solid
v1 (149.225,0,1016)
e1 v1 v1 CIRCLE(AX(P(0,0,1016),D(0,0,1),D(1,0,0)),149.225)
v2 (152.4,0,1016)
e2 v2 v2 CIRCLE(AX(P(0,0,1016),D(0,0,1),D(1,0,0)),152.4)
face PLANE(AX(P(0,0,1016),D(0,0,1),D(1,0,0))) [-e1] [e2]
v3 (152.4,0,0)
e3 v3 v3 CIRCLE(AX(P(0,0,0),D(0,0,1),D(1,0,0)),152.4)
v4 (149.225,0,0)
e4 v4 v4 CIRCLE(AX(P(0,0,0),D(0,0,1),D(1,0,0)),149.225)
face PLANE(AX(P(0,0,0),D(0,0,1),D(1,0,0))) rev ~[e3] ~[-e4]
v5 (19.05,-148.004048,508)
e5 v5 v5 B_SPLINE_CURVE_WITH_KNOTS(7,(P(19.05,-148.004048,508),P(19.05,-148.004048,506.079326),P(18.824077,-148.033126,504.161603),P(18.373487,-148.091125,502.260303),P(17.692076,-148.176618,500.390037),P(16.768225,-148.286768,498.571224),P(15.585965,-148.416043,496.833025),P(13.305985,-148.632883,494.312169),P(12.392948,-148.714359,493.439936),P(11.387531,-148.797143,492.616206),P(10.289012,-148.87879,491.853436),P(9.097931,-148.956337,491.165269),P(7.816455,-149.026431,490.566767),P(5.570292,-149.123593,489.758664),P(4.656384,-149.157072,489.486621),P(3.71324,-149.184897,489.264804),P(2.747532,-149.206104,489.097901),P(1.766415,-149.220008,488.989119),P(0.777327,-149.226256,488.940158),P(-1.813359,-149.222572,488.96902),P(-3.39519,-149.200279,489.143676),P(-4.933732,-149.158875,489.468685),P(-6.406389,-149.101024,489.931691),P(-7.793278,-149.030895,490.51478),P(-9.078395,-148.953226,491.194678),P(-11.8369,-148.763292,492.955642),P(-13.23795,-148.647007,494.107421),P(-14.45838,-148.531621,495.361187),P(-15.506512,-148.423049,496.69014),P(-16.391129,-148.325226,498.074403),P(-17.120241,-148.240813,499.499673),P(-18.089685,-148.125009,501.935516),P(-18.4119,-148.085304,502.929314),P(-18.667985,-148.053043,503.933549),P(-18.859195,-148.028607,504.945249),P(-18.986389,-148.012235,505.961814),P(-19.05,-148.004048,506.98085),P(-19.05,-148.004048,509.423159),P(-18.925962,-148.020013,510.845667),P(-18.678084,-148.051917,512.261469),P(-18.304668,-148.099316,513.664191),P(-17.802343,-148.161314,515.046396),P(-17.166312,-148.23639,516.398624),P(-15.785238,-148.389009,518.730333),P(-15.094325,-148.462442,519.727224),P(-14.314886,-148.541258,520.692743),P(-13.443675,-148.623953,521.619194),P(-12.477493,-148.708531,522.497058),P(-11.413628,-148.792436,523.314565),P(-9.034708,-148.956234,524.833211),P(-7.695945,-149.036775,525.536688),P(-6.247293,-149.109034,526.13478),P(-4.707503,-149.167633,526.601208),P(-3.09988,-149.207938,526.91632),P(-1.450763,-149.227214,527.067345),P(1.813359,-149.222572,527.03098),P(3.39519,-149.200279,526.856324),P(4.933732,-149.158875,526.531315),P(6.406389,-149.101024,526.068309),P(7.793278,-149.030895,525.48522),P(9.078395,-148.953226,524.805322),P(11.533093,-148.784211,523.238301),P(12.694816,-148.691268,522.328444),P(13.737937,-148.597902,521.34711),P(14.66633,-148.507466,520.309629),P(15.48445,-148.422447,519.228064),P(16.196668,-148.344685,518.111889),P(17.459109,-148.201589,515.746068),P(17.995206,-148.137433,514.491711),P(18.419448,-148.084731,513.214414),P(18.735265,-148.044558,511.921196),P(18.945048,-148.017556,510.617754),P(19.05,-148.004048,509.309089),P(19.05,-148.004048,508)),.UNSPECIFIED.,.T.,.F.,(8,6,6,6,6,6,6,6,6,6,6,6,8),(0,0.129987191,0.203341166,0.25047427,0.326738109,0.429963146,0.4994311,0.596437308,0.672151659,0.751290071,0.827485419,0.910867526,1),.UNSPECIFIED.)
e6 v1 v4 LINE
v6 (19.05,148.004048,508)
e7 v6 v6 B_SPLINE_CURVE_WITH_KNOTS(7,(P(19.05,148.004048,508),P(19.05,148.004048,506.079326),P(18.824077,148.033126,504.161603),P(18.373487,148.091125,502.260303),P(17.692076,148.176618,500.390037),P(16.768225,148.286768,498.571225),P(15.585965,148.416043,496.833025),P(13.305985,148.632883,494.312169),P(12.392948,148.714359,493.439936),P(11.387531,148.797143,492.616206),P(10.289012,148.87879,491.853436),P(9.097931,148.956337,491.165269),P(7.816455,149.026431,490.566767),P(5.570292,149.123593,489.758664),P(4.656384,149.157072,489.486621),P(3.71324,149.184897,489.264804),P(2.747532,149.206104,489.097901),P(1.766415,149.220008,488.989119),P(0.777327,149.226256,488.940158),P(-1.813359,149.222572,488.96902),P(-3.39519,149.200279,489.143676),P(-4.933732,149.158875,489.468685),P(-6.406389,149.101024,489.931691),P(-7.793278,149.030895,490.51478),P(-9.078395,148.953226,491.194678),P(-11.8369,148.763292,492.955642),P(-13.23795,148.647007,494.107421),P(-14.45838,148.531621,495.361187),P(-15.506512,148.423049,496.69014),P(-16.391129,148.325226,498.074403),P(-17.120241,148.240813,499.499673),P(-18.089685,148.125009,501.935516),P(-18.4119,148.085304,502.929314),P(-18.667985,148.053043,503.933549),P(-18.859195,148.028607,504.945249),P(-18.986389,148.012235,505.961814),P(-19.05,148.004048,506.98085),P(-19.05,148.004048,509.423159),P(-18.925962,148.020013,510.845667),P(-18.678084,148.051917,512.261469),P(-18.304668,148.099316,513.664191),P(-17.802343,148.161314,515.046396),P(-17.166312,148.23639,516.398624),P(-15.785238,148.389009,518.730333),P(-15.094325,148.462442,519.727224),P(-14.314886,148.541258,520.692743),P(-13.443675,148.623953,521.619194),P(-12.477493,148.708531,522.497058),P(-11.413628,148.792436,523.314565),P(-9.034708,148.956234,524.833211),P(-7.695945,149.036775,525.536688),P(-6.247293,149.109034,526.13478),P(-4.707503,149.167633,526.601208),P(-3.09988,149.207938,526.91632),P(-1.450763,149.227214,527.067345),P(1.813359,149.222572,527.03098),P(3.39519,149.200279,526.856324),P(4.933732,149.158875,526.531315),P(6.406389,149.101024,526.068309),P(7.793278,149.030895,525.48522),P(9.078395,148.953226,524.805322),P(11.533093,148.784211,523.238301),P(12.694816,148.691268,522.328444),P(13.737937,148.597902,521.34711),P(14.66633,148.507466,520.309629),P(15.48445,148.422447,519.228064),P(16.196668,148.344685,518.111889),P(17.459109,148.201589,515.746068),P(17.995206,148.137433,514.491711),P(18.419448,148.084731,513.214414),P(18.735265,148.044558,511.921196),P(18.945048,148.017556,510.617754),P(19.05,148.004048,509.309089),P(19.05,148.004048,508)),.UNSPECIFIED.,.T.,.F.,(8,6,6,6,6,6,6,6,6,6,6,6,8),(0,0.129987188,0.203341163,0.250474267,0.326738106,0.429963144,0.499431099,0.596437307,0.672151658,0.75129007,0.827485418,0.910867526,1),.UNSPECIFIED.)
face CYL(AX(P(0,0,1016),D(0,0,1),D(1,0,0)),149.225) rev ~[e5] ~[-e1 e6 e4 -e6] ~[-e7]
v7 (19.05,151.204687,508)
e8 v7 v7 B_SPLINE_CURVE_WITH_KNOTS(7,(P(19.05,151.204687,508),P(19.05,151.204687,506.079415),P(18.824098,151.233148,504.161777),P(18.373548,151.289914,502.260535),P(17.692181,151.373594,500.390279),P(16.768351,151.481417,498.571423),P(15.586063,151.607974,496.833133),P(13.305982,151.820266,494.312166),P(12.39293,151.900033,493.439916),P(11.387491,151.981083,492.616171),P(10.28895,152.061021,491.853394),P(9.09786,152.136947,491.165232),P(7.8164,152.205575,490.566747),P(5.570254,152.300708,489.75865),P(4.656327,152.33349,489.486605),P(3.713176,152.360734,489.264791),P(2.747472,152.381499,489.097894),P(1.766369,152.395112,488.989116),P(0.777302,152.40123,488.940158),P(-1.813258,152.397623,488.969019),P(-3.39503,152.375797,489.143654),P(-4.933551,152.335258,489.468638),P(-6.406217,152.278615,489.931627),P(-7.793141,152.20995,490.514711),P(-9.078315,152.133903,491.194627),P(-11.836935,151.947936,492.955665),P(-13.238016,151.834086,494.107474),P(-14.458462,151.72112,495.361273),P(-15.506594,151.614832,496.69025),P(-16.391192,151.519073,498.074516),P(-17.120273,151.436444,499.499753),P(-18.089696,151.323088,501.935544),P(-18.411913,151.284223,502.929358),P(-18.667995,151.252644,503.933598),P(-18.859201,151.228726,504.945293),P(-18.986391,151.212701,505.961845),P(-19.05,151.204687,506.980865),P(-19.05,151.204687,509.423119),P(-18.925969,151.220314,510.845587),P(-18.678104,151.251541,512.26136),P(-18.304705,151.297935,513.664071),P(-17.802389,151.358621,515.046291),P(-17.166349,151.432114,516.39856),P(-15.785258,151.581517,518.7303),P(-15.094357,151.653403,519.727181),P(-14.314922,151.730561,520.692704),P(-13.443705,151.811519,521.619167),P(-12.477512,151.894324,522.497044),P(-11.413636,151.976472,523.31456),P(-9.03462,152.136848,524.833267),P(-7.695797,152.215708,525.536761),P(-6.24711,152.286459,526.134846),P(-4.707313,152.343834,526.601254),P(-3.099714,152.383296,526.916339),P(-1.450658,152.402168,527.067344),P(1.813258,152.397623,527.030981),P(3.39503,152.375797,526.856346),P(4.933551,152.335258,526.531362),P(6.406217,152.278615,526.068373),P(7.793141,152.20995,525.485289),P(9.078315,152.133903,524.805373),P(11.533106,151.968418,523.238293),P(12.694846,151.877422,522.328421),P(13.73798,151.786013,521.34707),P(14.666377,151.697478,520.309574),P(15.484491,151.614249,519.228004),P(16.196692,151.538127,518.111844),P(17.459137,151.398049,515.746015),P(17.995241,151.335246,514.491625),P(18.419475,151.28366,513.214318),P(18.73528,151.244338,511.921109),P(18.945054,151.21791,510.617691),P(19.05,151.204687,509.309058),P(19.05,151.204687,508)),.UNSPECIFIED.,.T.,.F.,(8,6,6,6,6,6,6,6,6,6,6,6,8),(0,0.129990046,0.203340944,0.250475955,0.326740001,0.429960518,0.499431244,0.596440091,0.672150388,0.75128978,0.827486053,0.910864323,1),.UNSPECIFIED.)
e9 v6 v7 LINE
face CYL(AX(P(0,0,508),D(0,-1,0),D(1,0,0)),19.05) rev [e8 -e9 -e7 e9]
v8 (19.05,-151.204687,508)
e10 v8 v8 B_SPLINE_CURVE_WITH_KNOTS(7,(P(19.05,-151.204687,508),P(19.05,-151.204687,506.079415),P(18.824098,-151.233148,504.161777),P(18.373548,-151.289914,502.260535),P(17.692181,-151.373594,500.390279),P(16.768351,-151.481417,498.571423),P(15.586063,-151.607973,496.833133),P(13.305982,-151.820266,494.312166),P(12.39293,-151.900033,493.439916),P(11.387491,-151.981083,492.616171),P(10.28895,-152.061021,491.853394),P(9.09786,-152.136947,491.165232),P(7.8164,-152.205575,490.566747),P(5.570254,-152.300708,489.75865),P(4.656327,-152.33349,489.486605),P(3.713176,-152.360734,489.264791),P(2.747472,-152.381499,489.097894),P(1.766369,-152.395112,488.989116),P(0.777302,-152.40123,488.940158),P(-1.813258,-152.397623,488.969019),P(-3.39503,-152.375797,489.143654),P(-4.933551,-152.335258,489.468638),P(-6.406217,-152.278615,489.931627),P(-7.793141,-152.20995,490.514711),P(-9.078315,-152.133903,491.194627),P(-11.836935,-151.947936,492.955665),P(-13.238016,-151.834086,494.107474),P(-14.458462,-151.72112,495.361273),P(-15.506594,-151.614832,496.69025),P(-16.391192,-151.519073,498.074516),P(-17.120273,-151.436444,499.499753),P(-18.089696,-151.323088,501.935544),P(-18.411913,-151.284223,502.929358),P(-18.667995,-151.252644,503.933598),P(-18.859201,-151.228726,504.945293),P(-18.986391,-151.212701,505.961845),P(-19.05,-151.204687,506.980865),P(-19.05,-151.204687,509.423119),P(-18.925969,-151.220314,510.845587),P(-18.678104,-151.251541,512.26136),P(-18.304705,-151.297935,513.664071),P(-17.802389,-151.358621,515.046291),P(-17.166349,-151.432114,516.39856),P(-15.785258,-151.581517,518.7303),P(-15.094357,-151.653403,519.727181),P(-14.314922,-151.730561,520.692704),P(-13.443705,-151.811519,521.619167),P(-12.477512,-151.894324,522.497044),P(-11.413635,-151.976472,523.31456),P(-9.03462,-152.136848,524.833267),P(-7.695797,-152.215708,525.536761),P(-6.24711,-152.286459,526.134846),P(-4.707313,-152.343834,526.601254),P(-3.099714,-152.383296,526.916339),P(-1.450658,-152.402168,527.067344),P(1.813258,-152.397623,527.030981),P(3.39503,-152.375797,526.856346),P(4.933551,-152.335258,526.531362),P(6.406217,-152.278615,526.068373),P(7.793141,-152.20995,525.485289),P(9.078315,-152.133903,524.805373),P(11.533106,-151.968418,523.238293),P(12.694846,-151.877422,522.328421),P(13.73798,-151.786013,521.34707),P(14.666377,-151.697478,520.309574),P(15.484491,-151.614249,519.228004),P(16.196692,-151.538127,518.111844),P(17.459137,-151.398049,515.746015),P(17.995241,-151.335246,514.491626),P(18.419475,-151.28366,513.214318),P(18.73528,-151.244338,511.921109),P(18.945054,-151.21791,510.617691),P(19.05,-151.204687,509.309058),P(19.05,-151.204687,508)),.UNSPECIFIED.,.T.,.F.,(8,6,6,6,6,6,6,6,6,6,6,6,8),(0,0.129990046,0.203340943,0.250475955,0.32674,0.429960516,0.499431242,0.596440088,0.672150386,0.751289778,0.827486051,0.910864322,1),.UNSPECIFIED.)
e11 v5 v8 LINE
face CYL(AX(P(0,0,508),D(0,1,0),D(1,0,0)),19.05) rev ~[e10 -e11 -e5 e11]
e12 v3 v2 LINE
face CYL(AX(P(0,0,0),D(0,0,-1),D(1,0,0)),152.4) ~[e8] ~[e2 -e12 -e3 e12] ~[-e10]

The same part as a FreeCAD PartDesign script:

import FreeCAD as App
import Part
import Sketcher
Q = App.Units.Quantity

doc = App.newDocument("Part")
params = doc.addObject("Spreadsheet::Sheet", "Params")
for row, (alias, value) in enumerate([
    ("sketch1_diameter", "12 in"),
    ("pad1_length", "40 in"),
    ("sketch2_diameter", "11.75 in"),
    ("pocket1_length", "40 in"),
    ("sketch3_diameter", "1.5 in"),
], start=1):
    params.set(f"A{row}", alias)
    params.set(f"B{row}", "=" + value)
    params.setAlias(f"B{row}", alias)

body = doc.addObject("PartDesign::Body", "Body")

# Sketch on XY plane
sketch1 = body.newObject("Sketcher::SketchObject", "Sketch")
sketch1.AttachmentSupport = (doc.getObject("XY_Plane"), [""])
sketch1.MapMode = "FlatFace"
sketch1.addGeometry(Part.Circle(App.Vector(0, 0, 0), App.Vector(0, 0, 1), 152), False)
sketch1.addConstraint([
    Sketcher.Constraint("Coincident", 0, 3, -1, 1),
    Sketcher.Constraint("Diameter", 0, Q("12 in")),
])
sketch1.setExpression("Constraints[1]", "Params.sketch1_diameter")
pad1 = body.newObject("PartDesign::Pad", "Pad")
pad1.Profile = sketch1
pad1.setExpression("Length", "Params.pad1_length")

# Sketch on XY plane
sketch2 = body.newObject("Sketcher::SketchObject", "Sketch001")
sketch2.AttachmentSupport = (doc.getObject("XY_Plane"), [""])
sketch2.MapMode = "FlatFace"
sketch2.AttachmentOffset = App.Placement(App.Vector(0, 0, 40 * 25.4), App.Rotation())
sketch2.addGeometry(Part.Circle(App.Vector(0, 0, 0), App.Vector(0, 0, 1), 149), False)
sketch2.addConstraint([
    Sketcher.Constraint("Coincident", 0, 3, -1, 1),
    Sketcher.Constraint("Diameter", 0, Q("11.75 in")),
])
sketch2.setExpression("Constraints[1]", "Params.sketch2_diameter")
pocket1 = body.newObject("PartDesign::Pocket", "Pocket")
pocket1.Profile = sketch2
pocket1.setExpression("Length", "Params.pocket1_length")

# Sketch on XZ plane
sketch3 = body.newObject("Sketcher::SketchObject", "Sketch002")
sketch3.AttachmentSupport = (doc.getObject("XZ_Plane"), [""])
sketch3.MapMode = "FlatFace"
sketch3.addGeometry(Part.Circle(App.Vector(0, 508, 0), App.Vector(0, 0, 1), 19), False)
sketch3.addConstraint([
    Sketcher.Constraint("PointOnObject", 0, 3, -2),
    Sketcher.Constraint("Diameter", 0, Q("1.5 in")),
    Sketcher.Constraint("DistanceY", -1, 1, 0, 3, Q("20 in")),
])
sketch3.setExpression("Constraints[1]", "Params.sketch3_diameter")
pocket2 = body.newObject("PartDesign::Pocket", "Pocket001")
pocket2.Profile = sketch3
pocket2.Type = "ThroughAll"
pocket2.Midplane = True

doc.recompute()
